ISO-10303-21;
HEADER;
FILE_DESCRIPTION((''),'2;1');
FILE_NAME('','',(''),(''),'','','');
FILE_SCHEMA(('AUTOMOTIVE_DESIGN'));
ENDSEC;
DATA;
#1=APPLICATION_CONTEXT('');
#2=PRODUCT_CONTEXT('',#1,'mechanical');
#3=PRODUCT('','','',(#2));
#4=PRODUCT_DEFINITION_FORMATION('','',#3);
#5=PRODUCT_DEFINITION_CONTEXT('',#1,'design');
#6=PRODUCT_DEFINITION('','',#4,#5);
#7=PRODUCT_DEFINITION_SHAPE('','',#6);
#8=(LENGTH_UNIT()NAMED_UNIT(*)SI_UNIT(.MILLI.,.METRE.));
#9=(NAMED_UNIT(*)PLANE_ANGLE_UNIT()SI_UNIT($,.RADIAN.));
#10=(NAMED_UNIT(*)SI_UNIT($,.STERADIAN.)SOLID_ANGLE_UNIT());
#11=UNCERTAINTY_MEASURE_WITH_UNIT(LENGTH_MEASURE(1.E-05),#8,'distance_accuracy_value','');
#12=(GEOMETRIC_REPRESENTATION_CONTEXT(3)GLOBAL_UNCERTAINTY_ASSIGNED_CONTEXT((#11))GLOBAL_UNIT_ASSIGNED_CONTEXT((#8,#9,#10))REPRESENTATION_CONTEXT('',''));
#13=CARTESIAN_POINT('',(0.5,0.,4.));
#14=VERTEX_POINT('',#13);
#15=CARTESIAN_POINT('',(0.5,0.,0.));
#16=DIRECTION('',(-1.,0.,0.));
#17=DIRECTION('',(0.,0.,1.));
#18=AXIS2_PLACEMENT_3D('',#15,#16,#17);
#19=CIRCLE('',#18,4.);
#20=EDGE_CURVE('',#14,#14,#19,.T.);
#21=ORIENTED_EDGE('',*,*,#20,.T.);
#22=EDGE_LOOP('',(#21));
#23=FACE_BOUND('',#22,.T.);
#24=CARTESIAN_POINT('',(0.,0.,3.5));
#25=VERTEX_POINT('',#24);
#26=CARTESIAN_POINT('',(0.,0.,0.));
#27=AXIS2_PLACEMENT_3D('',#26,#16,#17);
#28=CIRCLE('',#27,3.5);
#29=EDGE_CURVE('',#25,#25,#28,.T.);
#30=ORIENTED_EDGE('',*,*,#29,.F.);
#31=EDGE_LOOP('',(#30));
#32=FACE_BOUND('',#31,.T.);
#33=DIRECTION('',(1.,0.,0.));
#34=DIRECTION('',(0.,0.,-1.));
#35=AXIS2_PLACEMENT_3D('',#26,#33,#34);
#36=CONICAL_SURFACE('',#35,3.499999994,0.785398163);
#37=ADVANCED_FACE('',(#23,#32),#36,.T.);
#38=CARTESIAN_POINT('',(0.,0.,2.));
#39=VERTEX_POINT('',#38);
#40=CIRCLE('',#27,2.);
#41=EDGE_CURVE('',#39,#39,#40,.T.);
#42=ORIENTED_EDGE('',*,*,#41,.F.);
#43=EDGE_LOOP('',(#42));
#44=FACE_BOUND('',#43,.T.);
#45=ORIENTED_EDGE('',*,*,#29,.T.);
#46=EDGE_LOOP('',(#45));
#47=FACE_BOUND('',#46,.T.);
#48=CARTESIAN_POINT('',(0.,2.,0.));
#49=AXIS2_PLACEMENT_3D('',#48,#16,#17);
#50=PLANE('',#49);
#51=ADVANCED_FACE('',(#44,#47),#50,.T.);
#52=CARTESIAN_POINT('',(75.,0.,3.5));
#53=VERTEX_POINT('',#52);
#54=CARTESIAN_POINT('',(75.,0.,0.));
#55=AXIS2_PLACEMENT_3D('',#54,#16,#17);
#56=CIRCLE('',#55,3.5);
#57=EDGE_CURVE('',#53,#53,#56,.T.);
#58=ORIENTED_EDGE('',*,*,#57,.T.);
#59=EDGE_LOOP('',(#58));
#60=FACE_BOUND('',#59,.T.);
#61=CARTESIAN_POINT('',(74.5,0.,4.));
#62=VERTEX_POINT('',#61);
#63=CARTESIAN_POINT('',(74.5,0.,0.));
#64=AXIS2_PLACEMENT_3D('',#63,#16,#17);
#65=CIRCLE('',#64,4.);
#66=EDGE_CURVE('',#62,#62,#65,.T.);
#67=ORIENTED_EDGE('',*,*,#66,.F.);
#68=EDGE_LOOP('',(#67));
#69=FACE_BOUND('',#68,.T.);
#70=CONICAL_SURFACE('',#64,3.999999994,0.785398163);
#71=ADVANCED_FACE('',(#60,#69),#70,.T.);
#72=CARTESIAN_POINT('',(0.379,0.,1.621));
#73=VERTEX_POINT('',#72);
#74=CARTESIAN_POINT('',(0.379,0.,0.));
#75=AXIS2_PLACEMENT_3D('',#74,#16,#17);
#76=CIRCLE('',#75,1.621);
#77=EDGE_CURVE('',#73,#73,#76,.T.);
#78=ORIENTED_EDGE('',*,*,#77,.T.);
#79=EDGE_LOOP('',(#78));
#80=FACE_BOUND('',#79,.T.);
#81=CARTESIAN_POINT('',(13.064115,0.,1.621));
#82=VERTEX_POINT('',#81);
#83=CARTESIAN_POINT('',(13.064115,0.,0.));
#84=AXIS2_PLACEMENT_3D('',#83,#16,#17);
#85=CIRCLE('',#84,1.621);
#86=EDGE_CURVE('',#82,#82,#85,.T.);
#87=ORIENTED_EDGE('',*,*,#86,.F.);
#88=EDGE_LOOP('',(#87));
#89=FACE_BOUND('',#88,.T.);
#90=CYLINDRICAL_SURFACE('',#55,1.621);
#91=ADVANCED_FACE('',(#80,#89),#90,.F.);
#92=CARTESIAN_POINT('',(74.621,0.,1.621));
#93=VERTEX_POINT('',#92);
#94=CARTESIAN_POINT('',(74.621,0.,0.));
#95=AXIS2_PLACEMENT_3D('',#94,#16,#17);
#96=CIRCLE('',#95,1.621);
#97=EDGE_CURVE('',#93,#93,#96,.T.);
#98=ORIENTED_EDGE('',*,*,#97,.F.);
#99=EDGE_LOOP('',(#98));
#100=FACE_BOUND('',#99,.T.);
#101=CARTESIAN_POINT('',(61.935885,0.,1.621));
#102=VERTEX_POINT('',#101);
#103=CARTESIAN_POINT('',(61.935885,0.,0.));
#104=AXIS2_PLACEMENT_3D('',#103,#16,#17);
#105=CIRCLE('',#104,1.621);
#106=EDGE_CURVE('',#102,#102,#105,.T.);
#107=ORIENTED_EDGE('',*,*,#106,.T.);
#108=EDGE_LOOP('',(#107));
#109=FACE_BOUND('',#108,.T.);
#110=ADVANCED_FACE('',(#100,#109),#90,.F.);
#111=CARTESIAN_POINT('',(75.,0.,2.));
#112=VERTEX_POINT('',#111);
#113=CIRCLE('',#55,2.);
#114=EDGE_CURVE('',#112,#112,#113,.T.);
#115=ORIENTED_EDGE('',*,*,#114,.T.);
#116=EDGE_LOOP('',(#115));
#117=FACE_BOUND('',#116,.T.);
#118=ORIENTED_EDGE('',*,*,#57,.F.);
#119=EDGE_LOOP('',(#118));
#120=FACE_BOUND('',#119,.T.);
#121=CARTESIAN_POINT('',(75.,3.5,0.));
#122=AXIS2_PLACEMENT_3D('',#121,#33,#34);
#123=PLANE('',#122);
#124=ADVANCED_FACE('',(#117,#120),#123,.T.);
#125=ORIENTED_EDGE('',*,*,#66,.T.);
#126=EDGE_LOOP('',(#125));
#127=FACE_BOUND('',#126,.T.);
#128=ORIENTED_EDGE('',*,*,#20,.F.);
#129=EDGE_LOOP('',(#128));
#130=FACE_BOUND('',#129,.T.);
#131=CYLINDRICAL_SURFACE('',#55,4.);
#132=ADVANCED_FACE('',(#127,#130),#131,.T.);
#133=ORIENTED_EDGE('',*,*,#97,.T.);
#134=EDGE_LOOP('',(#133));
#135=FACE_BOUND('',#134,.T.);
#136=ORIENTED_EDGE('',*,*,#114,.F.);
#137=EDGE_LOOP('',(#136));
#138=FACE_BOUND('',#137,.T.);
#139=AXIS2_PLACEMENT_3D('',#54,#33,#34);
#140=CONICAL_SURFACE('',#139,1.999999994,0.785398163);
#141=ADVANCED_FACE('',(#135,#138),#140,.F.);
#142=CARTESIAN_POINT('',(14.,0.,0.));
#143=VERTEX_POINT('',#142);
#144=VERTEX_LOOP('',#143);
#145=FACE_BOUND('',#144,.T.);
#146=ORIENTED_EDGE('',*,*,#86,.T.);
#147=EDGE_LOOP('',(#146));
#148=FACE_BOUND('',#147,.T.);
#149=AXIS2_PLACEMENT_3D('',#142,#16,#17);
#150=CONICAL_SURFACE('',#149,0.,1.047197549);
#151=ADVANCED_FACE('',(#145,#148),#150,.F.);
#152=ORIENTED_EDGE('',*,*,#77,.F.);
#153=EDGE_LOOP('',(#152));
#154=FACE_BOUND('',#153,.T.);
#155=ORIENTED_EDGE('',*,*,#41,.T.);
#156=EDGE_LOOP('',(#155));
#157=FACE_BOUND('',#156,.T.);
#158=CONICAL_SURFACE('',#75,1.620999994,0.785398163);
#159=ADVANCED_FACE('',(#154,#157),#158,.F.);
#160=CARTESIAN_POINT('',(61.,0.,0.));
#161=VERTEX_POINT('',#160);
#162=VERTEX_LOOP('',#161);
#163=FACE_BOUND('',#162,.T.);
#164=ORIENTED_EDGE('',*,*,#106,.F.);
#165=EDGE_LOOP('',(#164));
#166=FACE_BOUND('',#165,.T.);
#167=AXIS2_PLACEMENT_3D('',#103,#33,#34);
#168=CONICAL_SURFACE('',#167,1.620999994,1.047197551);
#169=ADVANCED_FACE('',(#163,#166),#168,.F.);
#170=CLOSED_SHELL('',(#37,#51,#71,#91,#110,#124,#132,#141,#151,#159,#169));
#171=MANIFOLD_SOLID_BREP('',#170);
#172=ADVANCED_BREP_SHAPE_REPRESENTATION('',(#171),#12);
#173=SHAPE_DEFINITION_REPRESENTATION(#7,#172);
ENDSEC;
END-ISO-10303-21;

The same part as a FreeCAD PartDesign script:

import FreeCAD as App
import Part
import Sketcher
Q = App.Units.Quantity


def add_polygon(sketch, points):
    """Adds a closed chain of lines whose ends are joined by coincident constraints."""
    first, n = sketch.GeometryCount, len(points)
    for a, b in zip(points, points[1:] + points[:1]):
        sketch.addGeometry(Part.LineSegment(App.Vector(*a, 0), App.Vector(*b, 0)), False)
    for i in range(n):
        sketch.addConstraint(Sketcher.Constraint("Coincident", first + i, 2, first + (i + 1) % n, 1))

doc = App.newDocument("Part")
body = doc.addObject("PartDesign::Body", "Body")

# Sketch on XY plane
sketch1 = doc.addObject("Sketcher::SketchObject", "Sketch")
body.addObject(sketch1)
sketch1.AttachmentSupport = (doc.XY_Plane, [""])
sketch1.MapMode = "FlatFace"
add_polygon(sketch1, [(61.9, 1.6), (61, 0), (14, 0), (13.1, 1.6), (0.4, 1.6), (0, 2), (0, 3.5), (0.5, 4), (74.5, 4), (75, 3.5), (75, 2), (74.6, 1.6)])  # lines 0-11
sketch1.addConstraint([
    Sketcher.Constraint("Horizontal", 1),
    Sketcher.Constraint("Horizontal", 3),
    Sketcher.Constraint("Vertical", 5),
    Sketcher.Constraint("Horizontal", 7),
    Sketcher.Constraint("Vertical", 9),
    Sketcher.Constraint("Horizontal", 11),
    Sketcher.Constraint("PointOnObject", 0, 2, -1),
    Sketcher.Constraint("PointOnObject", 4, 2, -2),
    Sketcher.Constraint("Perpendicular", 4, 6),
    Sketcher.Constraint("Perpendicular", 6, 8),
    Sketcher.Constraint("Perpendicular", 8, 10),
    Sketcher.Constraint("Horizontal", 5, 2, 8, 2),
    Sketcher.Constraint("Horizontal", 4, 2, 9, 2),
    Sketcher.Constraint("Horizontal", 3, 2, 10, 2),
    Sketcher.Constraint("Equal", 3, 11),
    Sketcher.Constraint("Equal", 0, 2),
    Sketcher.Constraint("Equal", 6, 8),
    Sketcher.Constraint("DistanceX", 1, 2, 1, 1, Q("47 mm")),
    Sketcher.Constraint("DistanceX", 7, 1, 7, 2, Q("74 mm")),
    Sketcher.Constraint("Angle", 0, Q("-120 deg")),
    Sketcher.Constraint("DistanceY", 5, 1, 5, 2, Q("1.5 mm")),
    Sketcher.Constraint("DistanceX", -1, 1, 0, 2, Q("61 mm")),
    Sketcher.Constraint("DistanceY", -1, 1, 4, 2, Q("2 mm")),
    Sketcher.Constraint("DistanceY", -1, 1, 2, 2, Q("1.621 mm")),
])
revolution = doc.addObject("PartDesign::Revolution", "Revolution")
body.addObject(revolution)
revolution.Profile = sketch1
revolution.ReferenceAxis = (sketch1, ["H_Axis"])
revolution.Angle = 360

doc.recompute()
